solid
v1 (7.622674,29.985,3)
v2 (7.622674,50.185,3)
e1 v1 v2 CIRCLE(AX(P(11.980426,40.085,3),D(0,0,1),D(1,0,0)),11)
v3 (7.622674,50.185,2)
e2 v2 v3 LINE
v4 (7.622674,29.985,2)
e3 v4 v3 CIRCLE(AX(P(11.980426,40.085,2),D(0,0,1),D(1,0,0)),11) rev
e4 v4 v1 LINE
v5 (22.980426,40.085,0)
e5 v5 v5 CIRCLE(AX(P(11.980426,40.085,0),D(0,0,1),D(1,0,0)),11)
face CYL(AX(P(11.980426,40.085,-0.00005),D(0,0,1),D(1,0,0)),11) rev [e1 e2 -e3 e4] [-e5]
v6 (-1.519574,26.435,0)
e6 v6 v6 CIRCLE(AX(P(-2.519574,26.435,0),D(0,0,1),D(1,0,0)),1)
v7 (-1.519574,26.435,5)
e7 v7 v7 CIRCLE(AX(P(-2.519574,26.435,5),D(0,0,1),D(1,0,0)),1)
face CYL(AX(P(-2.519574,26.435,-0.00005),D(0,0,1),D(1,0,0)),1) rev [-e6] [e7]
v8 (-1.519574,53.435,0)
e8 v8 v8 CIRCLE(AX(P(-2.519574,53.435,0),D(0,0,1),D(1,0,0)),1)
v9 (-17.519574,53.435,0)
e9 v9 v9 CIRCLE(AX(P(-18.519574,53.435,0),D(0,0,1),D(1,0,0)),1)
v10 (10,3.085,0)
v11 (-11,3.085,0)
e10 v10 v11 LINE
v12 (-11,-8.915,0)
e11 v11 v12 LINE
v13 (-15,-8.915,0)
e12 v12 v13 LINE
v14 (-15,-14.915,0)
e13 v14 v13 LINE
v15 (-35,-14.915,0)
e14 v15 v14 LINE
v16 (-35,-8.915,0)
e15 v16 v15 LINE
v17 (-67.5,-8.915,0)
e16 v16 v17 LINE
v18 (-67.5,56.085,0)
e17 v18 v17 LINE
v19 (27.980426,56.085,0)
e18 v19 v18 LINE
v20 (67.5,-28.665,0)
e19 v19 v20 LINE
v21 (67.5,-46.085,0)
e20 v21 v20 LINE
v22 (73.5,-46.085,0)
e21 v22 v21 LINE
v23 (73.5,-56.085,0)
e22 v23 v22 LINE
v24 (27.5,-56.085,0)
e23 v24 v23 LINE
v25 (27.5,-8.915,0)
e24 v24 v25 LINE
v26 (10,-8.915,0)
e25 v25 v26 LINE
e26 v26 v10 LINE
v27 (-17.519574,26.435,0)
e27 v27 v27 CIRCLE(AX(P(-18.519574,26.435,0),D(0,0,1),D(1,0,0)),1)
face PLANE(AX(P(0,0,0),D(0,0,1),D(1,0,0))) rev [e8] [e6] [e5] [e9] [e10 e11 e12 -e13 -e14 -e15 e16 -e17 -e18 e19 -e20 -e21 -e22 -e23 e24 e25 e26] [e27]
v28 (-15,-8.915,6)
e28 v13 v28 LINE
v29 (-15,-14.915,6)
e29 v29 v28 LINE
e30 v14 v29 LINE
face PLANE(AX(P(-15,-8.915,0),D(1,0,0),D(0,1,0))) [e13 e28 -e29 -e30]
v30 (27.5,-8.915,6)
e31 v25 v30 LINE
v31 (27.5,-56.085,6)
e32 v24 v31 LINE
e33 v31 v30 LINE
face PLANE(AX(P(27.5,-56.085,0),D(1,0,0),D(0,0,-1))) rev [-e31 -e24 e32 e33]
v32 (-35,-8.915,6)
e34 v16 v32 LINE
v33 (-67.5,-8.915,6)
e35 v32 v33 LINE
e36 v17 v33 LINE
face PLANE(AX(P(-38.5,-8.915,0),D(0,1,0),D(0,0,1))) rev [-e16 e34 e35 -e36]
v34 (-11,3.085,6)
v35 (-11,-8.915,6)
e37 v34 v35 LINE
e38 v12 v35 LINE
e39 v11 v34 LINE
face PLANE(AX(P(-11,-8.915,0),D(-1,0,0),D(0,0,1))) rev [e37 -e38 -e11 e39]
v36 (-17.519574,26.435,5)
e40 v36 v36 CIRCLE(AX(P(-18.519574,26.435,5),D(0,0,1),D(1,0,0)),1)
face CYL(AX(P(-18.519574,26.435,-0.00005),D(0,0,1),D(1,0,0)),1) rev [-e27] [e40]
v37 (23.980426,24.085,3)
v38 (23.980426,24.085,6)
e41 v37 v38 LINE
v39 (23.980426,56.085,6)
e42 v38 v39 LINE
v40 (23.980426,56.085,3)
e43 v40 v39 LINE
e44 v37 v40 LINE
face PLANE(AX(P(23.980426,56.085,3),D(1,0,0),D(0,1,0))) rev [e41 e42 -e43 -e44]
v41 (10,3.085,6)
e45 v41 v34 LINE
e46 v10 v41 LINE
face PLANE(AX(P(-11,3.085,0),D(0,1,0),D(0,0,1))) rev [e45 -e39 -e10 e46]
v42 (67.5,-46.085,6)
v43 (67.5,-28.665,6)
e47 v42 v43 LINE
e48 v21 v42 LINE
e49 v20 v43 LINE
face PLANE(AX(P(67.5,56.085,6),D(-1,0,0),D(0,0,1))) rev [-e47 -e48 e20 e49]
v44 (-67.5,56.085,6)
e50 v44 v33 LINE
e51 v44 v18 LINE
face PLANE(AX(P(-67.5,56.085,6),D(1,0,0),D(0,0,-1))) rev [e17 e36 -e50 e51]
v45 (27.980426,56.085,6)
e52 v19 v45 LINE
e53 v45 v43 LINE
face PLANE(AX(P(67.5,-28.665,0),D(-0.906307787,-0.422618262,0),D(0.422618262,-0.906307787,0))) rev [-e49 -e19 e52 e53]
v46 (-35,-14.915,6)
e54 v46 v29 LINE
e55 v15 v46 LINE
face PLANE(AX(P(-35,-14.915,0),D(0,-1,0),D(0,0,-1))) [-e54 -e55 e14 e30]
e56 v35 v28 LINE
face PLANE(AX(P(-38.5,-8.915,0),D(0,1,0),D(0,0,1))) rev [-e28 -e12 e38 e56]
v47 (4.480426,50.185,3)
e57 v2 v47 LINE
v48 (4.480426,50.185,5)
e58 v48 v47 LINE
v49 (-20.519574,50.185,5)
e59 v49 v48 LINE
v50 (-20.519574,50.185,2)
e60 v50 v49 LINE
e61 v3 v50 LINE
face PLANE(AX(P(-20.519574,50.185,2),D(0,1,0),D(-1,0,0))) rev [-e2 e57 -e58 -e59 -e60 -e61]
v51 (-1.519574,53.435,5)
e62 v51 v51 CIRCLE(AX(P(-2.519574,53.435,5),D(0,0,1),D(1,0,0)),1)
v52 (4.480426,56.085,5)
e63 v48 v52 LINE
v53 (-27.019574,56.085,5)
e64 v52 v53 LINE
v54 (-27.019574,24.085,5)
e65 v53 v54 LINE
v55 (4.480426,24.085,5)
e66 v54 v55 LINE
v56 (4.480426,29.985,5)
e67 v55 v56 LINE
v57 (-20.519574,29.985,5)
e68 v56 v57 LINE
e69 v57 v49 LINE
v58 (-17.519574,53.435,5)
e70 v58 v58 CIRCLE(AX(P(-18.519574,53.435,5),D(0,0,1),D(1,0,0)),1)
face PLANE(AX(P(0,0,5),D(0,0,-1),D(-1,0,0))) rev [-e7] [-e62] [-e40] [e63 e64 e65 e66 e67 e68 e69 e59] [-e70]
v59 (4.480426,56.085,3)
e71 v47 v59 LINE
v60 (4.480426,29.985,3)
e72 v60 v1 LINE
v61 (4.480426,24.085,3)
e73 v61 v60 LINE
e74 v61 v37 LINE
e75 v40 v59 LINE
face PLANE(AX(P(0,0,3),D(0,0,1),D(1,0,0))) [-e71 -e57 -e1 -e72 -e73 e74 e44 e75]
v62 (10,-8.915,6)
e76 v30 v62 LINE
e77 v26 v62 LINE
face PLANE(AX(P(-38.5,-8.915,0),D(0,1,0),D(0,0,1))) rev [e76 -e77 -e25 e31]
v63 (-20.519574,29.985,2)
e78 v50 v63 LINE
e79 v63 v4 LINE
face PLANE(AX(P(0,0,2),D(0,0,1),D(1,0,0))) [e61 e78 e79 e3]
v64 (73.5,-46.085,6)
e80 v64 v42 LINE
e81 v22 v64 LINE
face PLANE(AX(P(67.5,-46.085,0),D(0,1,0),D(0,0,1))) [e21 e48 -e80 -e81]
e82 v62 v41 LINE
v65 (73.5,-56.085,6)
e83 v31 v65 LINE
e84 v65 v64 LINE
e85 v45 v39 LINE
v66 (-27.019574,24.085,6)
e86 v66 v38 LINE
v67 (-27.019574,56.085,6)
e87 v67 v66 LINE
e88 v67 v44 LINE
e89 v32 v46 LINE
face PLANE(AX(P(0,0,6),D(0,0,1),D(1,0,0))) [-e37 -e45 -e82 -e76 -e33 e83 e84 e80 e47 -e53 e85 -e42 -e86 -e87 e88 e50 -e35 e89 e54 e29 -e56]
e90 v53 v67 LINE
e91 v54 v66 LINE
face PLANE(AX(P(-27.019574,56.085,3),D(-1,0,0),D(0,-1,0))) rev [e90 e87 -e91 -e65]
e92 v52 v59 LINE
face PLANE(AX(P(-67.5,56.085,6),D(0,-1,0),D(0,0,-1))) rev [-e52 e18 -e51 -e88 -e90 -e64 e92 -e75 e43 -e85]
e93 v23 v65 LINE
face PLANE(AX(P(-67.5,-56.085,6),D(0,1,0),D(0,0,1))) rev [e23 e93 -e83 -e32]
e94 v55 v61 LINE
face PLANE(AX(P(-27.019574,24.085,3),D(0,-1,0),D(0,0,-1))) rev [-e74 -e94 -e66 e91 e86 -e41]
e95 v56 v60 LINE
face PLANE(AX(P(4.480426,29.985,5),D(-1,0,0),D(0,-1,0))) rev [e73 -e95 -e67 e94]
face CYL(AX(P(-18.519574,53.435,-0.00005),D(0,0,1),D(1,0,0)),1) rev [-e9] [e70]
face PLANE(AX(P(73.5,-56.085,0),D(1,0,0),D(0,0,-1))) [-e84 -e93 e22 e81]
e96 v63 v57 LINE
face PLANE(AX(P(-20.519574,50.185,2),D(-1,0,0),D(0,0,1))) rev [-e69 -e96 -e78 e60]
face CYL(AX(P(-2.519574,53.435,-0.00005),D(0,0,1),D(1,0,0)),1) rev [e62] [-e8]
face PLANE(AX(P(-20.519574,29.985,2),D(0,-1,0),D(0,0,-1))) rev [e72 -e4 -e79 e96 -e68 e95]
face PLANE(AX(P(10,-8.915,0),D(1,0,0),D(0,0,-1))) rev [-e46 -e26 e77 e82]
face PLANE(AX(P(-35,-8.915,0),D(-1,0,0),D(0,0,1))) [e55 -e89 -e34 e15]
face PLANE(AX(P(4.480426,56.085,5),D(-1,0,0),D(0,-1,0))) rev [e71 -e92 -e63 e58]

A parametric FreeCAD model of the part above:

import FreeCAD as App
import Part
import Sketcher
Q = App.Units.Quantity


def add_polygon(sketch, points):
    """Adds a closed chain of lines whose ends are joined by coincident constraints."""
    first, n = sketch.GeometryCount, len(points)
    for a, b in zip(points, points[1:] + points[:1]):
        sketch.addGeometry(Part.LineSegment(App.Vector(*a, 0), App.Vector(*b, 0)), False)
    for i in range(n):
        sketch.addConstraint(Sketcher.Constraint("Coincident", first + i, 2, first + (i + 1) % n, 1))

doc = App.newDocument("Part")
body = doc.addObject("PartDesign::Body", "Body")

# Sketch on XY plane
sketch1 = body.newObject("Sketcher::SketchObject", "Sketch")
sketch1.AttachmentSupport = (doc.getObject("XY_Plane"), [""])
sketch1.MapMode = "FlatFace"
add_polygon(sketch1, [(-68, 56), (-68, -56), (68, -56), (68, 56)])  # lines 0-3
sketch1.addConstraint(Sketcher.Constraint("Vertical", 0))
sketch1.addConstraint(Sketcher.Constraint("Horizontal", 1))
sketch1.addConstraint(Sketcher.Constraint("Vertical", 2))
sketch1.addConstraint(Sketcher.Constraint("Horizontal", 3))
sketch1.addConstraint(Sketcher.Constraint("Symmetric", 0, 2, 2, 2, -1, 1))
sketch1.addConstraint(Sketcher.Constraint("DistanceX", 1, 1, 1, 2, 135.0))
sketch1.addConstraint(Sketcher.Constraint("DistanceY", 0, 2, 0, 1, 112.17))
pad1 = body.newObject("PartDesign::Pad", "Pad")
pad1.Profile = sketch1
pad1.Length = 6

# Sketch on XY plane
sketch2 = body.newObject("Sketcher::SketchObject", "Sketch001")
sketch2.AttachmentSupport = (doc.getObject("XY_Plane"), [""])
sketch2.MapMode = "FlatFace"
sketch2.AttachmentOffset = App.Placement(App.Vector(0, 0, 6), App.Rotation())
add_polygon(sketch2, [(-68, -56), (28, -56), (28, -9), (-68, -9)])  # lines 0-3
add_polygon(sketch2, [(28, 56), (68, -29), (68, 56)])  # lines 4-6
sketch2.addConstraint(Sketcher.Constraint("Horizontal", 0))
sketch2.addConstraint(Sketcher.Constraint("Vertical", 1))
sketch2.addConstraint(Sketcher.Constraint("Horizontal", 2))
sketch2.addConstraint(Sketcher.Constraint("Vertical", 3))
sketch2.addConstraint(Sketcher.Constraint("Vertical", 5))
sketch2.addConstraint(Sketcher.Constraint("Horizontal", 6))
sketch2.addConstraint(Sketcher.Constraint("Symmetric", 3, 2, 5, 2, -1, 1))
sketch2.addConstraint(Sketcher.Constraint("DistanceX", 0, 1, 0, 2, 95.0))
sketch2.addConstraint(Sketcher.Constraint("Angle", 4, Q("-65 deg")))
sketch2.addConstraint(Sketcher.Constraint("DistanceX", 1, 2, 4, 2, 40.0))
sketch2.addConstraint(Sketcher.Constraint("DistanceY", 1, 2, 5, 2, 65.0))
sketch2.addConstraint(Sketcher.Constraint("DistanceY", 1, 1, 1, 2, 47.17))
sketch2.addConstraint(Sketcher.Constraint("DistanceY", 5, 1, 5, 2, 84.75))
pocket1 = body.newObject("PartDesign::Pocket", "Pocket")
pocket1.Profile = sketch2
pocket1.Length = 6

# Sketch on XY plane
sketch3 = body.newObject("Sketcher::SketchObject", "Sketch002")
sketch3.AttachmentSupport = (doc.getObject("XY_Plane"), [""])
sketch3.MapMode = "FlatFace"
sketch3.AttachmentOffset = App.Placement(App.Vector(0, 0, 6), App.Rotation())
add_polygon(sketch3, [(68, -46), (68, -56), (74, -56), (74, -46)])  # lines 0-3
add_polygon(sketch3, [(-35, -9), (-35, -15), (-15, -15), (-15, -9)])  # lines 4-7
sketch3.addConstraint(Sketcher.Constraint("Vertical", 0))
sketch3.addConstraint(Sketcher.Constraint("Horizontal", 1))
sketch3.addConstraint(Sketcher.Constraint("Vertical", 2))
sketch3.addConstraint(Sketcher.Constraint("Horizontal", 3))
sketch3.addConstraint(Sketcher.Constraint("Vertical", 4))
sketch3.addConstraint(Sketcher.Constraint("Horizontal", 5))
sketch3.addConstraint(Sketcher.Constraint("Vertical", 6))
sketch3.addConstraint(Sketcher.Constraint("Horizontal", 7))
sketch3.addConstraint(Sketcher.Constraint("Equal", 3, 4))
sketch3.addConstraint(Sketcher.Constraint("DistanceX", 1, 1, 1, 2, 6.0))
sketch3.addConstraint(Sketcher.Constraint("DistanceX", 5, 1, 5, 2, 20.0))
sketch3.addConstraint(Sketcher.Constraint("DistanceY", 0, 2, 0, 1, 10.0))
sketch3.addConstraint(Sketcher.Constraint("DistanceX", 4, 2, -1, 1, 35.0))
sketch3.addConstraint(Sketcher.Constraint("DistanceX", -1, 1, 0, 2, 67.5))
sketch3.addConstraint(Sketcher.Constraint("DistanceY", 3, 2, 4, 2, 31.17))
sketch3.addConstraint(Sketcher.Constraint("DistanceY", 0, 2, -1, 1, 56.085))
pad2 = body.newObject("PartDesign::Pad", "Pad001")
pad2.Profile = sketch3
pad2.Length = 6
pad2.Reversed = True

# Sketch on XY plane
sketch4 = body.newObject("Sketcher::SketchObject", "Sketch003")
sketch4.AttachmentSupport = (doc.getObject("XY_Plane"), [""])
sketch4.MapMode = "FlatFace"
sketch4.AttachmentOffset = App.Placement(App.Vector(0, 0, 6), App.Rotation())
add_polygon(sketch4, [(-27, 56), (-27, 24), (24, 24), (24, 56)])  # lines 0-3
sketch4.addConstraint(Sketcher.Constraint("Vertical", 0))
sketch4.addConstraint(Sketcher.Constraint("Horizontal", 1))
sketch4.addConstraint(Sketcher.Constraint("Vertical", 2))
sketch4.addConstraint(Sketcher.Constraint("Horizontal", 3))
sketch4.addConstraint(Sketcher.Constraint("DistanceX", 1, 1, 1, 2, 51.0))
sketch4.addConstraint(Sketcher.Constraint("DistanceY", 0, 2, 0, 1, 32.0))
sketch4.addConstraint(Sketcher.Constraint("DistanceY", -1, 1, 0, 2, 24.085))
sketch4.addConstraint(Sketcher.Constraint("DistanceX", 0, 2, -1, 1, 27.019574))
pocket2 = body.newObject("PartDesign::Pocket", "Pocket001")
pocket2.Profile = sketch4
pocket2.Length = 3

# Sketch on XY plane
sketch5 = body.newObject("Sketcher::SketchObject", "Sketch004")
sketch5.AttachmentSupport = (doc.getObject("XY_Plane"), [""])
sketch5.MapMode = "FlatFace"
sketch5.AttachmentOffset = App.Placement(App.Vector(0, 0, 3), App.Rotation())
sketch5.addGeometry(Part.Circle(App.Vector(12, 40, 0), App.Vector(0, 0, 1), 11), False)
sketch5.addConstraint(Sketcher.Constraint("Diameter", 0, 22.0))
sketch5.addConstraint(Sketcher.Constraint("DistanceY", -1, 1, 0, 3, 40.085))
sketch5.addConstraint(Sketcher.Constraint("DistanceX", -1, 1, 0, 3, 11.980426))
pocket3 = body.newObject("PartDesign::Pocket", "Pocket002")
pocket3.Profile = sketch5
pocket3.Type = "ThroughAll"

# Sketch on XY plane
sketch6 = body.newObject("Sketcher::SketchObject", "Sketch005")
sketch6.AttachmentSupport = (doc.getObject("XY_Plane"), [""])
sketch6.MapMode = "FlatFace"
sketch6.AttachmentOffset = App.Placement(App.Vector(0, 0, 3), App.Rotation())
add_polygon(sketch6, [(-21, 50), (-21, 30), (9, 30), (9, 50)])  # lines 0-3
sketch6.addConstraint(Sketcher.Constraint("Vertical", 0))
sketch6.addConstraint(Sketcher.Constraint("Horizontal", 1))
sketch6.addConstraint(Sketcher.Constraint("Vertical", 2))
sketch6.addConstraint(Sketcher.Constraint("Horizontal", 3))
sketch6.addConstraint(Sketcher.Constraint("DistanceX", 1, 1, 1, 2, 30.0))
sketch6.addConstraint(Sketcher.Constraint("DistanceY", 0, 2, 0, 1, 20.2))
sketch6.addConstraint(Sketcher.Constraint("DistanceY", -1, 1, 0, 2, 29.985))
sketch6.addConstraint(Sketcher.Constraint("DistanceX", 0, 2, -1, 1, 20.519574))
pocket4 = body.newObject("PartDesign::Pocket", "Pocket003")
pocket4.Profile = sketch6
pocket4.Length = 1

# Sketch on XY plane
sketch7 = body.newObject("Sketcher::SketchObject", "Sketch006")
sketch7.AttachmentSupport = (doc.getObject("XY_Plane"), [""])
sketch7.MapMode = "FlatFace"
sketch7.AttachmentOffset = App.Placement(App.Vector(0, 0, 3), App.Rotation())
add_polygon(sketch7, [(-21, 56), (-21, 50), (4, 50), (4, 56)])  # lines 0-3
sketch7.addConstraint(Sketcher.Constraint("Vertical", 0))
sketch7.addConstraint(Sketcher.Constraint("Horizontal", 1))
sketch7.addConstraint(Sketcher.Constraint("Vertical", 2))
sketch7.addConstraint(Sketcher.Constraint("Horizontal", 3))
sketch7.addConstraint(Sketcher.Constraint("DistanceX", 1, 1, 1, 2, 25.0))
sketch7.addConstraint(Sketcher.Constraint("DistanceY", 0, 2, 0, 1, 5.9))
sketch7.addConstraint(Sketcher.Constraint("DistanceY", -1, 1, 0, 2, 50.185))
sketch7.addConstraint(Sketcher.Constraint("DistanceX", 0, 2, -1, 1, 20.519574))
pad3 = body.newObject("PartDesign::Pad", "Pad002")
pad3.Profile = sketch7
pad3.Length = 2

# Sketch on XY plane
sketch8 = body.newObject("Sketcher::SketchObject", "Sketch007")
sketch8.AttachmentSupport = (doc.getObject("XY_Plane"), [""])
sketch8.MapMode = "FlatFace"
sketch8.AttachmentOffset = App.Placement(App.Vector(0, 0, 3), App.Rotation())
add_polygon(sketch8, [(-21, 30), (-21, 24), (4, 24), (4, 30)])  # lines 0-3
sketch8.addConstraint(Sketcher.Constraint("Vertical", 0))
sketch8.addConstraint(Sketcher.Constraint("Horizontal", 1))
sketch8.addConstraint(Sketcher.Constraint("Vertical", 2))
sketch8.addConstraint(Sketcher.Constraint("Horizontal", 3))
sketch8.addConstraint(Sketcher.Constraint("DistanceX", 1, 1, 1, 2, 25.0))
sketch8.addConstraint(Sketcher.Constraint("DistanceY", 0, 2, 0, 1, 5.9))
sketch8.addConstraint(Sketcher.Constraint("DistanceY", -1, 1, 0, 2, 24.085))
sketch8.addConstraint(Sketcher.Constraint("DistanceX", 0, 2, -1, 1, 20.519574))
pad4 = body.newObject("PartDesign::Pad", "Pad003")
pad4.Profile = sketch8
pad4.Length = 2

# Sketch on XY plane
sketch9 = body.newObject("Sketcher::SketchObject", "Sketch008")
sketch9.AttachmentSupport = (doc.getObject("XY_Plane"), [""])
sketch9.MapMode = "FlatFace"
sketch9.AttachmentOffset = App.Placement(App.Vector(0, 0, 3), App.Rotation())
add_polygon(sketch9, [(-27, 56), (-27, 24), (-21, 24), (-21, 56)])  # lines 0-3
sketch9.addConstraint(Sketcher.Constraint("Vertical", 0))
sketch9.addConstraint(Sketcher.Constraint("Horizontal", 1))
sketch9.addConstraint(Sketcher.Constraint("Vertical", 2))
sketch9.addConstraint(Sketcher.Constraint("Horizontal", 3))
sketch9.addConstraint(Sketcher.Constraint("DistanceY", 0, 2, 0, 1, 32.0))
sketch9.addConstraint(Sketcher.Constraint("DistanceX", 1, 1, 1, 2, 6.5))
sketch9.addConstraint(Sketcher.Constraint("DistanceY", -1, 1, 0, 2, 24.085))
sketch9.addConstraint(Sketcher.Constraint("DistanceX", 0, 2, -1, 1, 27.019574))
pad5 = body.newObject("PartDesign::Pad", "Pad004")
pad5.Profile = sketch9
pad5.Length = 2

# Sketch on XY plane
sketch10 = body.newObject("Sketcher::SketchObject", "Sketch009")
sketch10.AttachmentSupport = (doc.getObject("XY_Plane"), [""])
sketch10.MapMode = "FlatFace"
sketch10.AttachmentOffset = App.Placement(App.Vector(0, 0, 5), App.Rotation())
sketch10.addGeometry(Part.Circle(App.Vector(-18.5, 53.4, 0), App.Vector(0, 0, 1), 1), False)
sketch10.addGeometry(Part.Circle(App.Vector(-2.5, 53.4, 0), App.Vector(0, 0, 1), 1), False)
sketch10.addGeometry(Part.Circle(App.Vector(-18.5, 26.4, 0), App.Vector(0, 0, 1), 1), False)
sketch10.addGeometry(Part.Circle(App.Vector(-2.5, 26.4, 0), App.Vector(0, 0, 1), 1), False)
sketch10.addConstraint(Sketcher.Constraint("Equal", 0, 1))
sketch10.addConstraint(Sketcher.Constraint("Equal", 1, 2))
sketch10.addConstraint(Sketcher.Constraint("Equal", 2, 3))
sketch10.addConstraint(Sketcher.Constraint("Horizontal", 0, 3, 1, 3))
sketch10.addConstraint(Sketcher.Constraint("Horizontal", 2, 3, 3, 3))
sketch10.addConstraint(Sketcher.Constraint("Vertical", 0, 3, 2, 3))
sketch10.addConstraint(Sketcher.Constraint("Vertical", 1, 3, 3, 3))
sketch10.addConstraint(Sketcher.Constraint("Diameter", 0, 2.0))
sketch10.addConstraint(Sketcher.Constraint("DistanceX", 0, 3, 1, 3, 16.0))
sketch10.addConstraint(Sketcher.Constraint("DistanceY", 2, 3, 0, 3, 27.0))
sketch10.addConstraint(Sketcher.Constraint("DistanceY", -1, 1, 0, 3, 53.435))
sketch10.addConstraint(Sketcher.Constraint("DistanceX", 0, 3, -1, 1, 18.519574))
pocket5 = body.newObject("PartDesign::Pocket", "Pocket004")
pocket5.Profile = sketch10
pocket5.Type = "ThroughAll"

# Sketch on XY plane
sketch11 = body.newObject("Sketcher::SketchObject", "Sketch010")
sketch11.AttachmentSupport = (doc.getObject("XY_Plane"), [""])
sketch11.MapMode = "FlatFace"
sketch11.AttachmentOffset = App.Placement(App.Vector(0, 0, 6), App.Rotation())
add_polygon(sketch11, [(-11, 3), (-11, -9), (10, -9), (10, 3)])  # lines 0-3
sketch11.addConstraint(Sketcher.Constraint("Vertical", 0))
sketch11.addConstraint(Sketcher.Constraint("Horizontal", 1))
sketch11.addConstraint(Sketcher.Constraint("Vertical", 2))
sketch11.addConstraint(Sketcher.Constraint("Horizontal", 3))
sketch11.addConstraint(Sketcher.Constraint("DistanceX", 1, 1, 1, 2, 21.0))
sketch11.addConstraint(Sketcher.Constraint("DistanceY", 0, 2, 0, 1, 12.0))
sketch11.addConstraint(Sketcher.Constraint("DistanceX", 0, 2, -1, 1, 11.0))
sketch11.addConstraint(Sketcher.Constraint("DistanceY", 0, 2, -1, 1, 8.915))
pocket6 = body.newObject("PartDesign::Pocket", "Pocket005")
pocket6.Profile = sketch11
pocket6.Length = 6

doc.recompute()
